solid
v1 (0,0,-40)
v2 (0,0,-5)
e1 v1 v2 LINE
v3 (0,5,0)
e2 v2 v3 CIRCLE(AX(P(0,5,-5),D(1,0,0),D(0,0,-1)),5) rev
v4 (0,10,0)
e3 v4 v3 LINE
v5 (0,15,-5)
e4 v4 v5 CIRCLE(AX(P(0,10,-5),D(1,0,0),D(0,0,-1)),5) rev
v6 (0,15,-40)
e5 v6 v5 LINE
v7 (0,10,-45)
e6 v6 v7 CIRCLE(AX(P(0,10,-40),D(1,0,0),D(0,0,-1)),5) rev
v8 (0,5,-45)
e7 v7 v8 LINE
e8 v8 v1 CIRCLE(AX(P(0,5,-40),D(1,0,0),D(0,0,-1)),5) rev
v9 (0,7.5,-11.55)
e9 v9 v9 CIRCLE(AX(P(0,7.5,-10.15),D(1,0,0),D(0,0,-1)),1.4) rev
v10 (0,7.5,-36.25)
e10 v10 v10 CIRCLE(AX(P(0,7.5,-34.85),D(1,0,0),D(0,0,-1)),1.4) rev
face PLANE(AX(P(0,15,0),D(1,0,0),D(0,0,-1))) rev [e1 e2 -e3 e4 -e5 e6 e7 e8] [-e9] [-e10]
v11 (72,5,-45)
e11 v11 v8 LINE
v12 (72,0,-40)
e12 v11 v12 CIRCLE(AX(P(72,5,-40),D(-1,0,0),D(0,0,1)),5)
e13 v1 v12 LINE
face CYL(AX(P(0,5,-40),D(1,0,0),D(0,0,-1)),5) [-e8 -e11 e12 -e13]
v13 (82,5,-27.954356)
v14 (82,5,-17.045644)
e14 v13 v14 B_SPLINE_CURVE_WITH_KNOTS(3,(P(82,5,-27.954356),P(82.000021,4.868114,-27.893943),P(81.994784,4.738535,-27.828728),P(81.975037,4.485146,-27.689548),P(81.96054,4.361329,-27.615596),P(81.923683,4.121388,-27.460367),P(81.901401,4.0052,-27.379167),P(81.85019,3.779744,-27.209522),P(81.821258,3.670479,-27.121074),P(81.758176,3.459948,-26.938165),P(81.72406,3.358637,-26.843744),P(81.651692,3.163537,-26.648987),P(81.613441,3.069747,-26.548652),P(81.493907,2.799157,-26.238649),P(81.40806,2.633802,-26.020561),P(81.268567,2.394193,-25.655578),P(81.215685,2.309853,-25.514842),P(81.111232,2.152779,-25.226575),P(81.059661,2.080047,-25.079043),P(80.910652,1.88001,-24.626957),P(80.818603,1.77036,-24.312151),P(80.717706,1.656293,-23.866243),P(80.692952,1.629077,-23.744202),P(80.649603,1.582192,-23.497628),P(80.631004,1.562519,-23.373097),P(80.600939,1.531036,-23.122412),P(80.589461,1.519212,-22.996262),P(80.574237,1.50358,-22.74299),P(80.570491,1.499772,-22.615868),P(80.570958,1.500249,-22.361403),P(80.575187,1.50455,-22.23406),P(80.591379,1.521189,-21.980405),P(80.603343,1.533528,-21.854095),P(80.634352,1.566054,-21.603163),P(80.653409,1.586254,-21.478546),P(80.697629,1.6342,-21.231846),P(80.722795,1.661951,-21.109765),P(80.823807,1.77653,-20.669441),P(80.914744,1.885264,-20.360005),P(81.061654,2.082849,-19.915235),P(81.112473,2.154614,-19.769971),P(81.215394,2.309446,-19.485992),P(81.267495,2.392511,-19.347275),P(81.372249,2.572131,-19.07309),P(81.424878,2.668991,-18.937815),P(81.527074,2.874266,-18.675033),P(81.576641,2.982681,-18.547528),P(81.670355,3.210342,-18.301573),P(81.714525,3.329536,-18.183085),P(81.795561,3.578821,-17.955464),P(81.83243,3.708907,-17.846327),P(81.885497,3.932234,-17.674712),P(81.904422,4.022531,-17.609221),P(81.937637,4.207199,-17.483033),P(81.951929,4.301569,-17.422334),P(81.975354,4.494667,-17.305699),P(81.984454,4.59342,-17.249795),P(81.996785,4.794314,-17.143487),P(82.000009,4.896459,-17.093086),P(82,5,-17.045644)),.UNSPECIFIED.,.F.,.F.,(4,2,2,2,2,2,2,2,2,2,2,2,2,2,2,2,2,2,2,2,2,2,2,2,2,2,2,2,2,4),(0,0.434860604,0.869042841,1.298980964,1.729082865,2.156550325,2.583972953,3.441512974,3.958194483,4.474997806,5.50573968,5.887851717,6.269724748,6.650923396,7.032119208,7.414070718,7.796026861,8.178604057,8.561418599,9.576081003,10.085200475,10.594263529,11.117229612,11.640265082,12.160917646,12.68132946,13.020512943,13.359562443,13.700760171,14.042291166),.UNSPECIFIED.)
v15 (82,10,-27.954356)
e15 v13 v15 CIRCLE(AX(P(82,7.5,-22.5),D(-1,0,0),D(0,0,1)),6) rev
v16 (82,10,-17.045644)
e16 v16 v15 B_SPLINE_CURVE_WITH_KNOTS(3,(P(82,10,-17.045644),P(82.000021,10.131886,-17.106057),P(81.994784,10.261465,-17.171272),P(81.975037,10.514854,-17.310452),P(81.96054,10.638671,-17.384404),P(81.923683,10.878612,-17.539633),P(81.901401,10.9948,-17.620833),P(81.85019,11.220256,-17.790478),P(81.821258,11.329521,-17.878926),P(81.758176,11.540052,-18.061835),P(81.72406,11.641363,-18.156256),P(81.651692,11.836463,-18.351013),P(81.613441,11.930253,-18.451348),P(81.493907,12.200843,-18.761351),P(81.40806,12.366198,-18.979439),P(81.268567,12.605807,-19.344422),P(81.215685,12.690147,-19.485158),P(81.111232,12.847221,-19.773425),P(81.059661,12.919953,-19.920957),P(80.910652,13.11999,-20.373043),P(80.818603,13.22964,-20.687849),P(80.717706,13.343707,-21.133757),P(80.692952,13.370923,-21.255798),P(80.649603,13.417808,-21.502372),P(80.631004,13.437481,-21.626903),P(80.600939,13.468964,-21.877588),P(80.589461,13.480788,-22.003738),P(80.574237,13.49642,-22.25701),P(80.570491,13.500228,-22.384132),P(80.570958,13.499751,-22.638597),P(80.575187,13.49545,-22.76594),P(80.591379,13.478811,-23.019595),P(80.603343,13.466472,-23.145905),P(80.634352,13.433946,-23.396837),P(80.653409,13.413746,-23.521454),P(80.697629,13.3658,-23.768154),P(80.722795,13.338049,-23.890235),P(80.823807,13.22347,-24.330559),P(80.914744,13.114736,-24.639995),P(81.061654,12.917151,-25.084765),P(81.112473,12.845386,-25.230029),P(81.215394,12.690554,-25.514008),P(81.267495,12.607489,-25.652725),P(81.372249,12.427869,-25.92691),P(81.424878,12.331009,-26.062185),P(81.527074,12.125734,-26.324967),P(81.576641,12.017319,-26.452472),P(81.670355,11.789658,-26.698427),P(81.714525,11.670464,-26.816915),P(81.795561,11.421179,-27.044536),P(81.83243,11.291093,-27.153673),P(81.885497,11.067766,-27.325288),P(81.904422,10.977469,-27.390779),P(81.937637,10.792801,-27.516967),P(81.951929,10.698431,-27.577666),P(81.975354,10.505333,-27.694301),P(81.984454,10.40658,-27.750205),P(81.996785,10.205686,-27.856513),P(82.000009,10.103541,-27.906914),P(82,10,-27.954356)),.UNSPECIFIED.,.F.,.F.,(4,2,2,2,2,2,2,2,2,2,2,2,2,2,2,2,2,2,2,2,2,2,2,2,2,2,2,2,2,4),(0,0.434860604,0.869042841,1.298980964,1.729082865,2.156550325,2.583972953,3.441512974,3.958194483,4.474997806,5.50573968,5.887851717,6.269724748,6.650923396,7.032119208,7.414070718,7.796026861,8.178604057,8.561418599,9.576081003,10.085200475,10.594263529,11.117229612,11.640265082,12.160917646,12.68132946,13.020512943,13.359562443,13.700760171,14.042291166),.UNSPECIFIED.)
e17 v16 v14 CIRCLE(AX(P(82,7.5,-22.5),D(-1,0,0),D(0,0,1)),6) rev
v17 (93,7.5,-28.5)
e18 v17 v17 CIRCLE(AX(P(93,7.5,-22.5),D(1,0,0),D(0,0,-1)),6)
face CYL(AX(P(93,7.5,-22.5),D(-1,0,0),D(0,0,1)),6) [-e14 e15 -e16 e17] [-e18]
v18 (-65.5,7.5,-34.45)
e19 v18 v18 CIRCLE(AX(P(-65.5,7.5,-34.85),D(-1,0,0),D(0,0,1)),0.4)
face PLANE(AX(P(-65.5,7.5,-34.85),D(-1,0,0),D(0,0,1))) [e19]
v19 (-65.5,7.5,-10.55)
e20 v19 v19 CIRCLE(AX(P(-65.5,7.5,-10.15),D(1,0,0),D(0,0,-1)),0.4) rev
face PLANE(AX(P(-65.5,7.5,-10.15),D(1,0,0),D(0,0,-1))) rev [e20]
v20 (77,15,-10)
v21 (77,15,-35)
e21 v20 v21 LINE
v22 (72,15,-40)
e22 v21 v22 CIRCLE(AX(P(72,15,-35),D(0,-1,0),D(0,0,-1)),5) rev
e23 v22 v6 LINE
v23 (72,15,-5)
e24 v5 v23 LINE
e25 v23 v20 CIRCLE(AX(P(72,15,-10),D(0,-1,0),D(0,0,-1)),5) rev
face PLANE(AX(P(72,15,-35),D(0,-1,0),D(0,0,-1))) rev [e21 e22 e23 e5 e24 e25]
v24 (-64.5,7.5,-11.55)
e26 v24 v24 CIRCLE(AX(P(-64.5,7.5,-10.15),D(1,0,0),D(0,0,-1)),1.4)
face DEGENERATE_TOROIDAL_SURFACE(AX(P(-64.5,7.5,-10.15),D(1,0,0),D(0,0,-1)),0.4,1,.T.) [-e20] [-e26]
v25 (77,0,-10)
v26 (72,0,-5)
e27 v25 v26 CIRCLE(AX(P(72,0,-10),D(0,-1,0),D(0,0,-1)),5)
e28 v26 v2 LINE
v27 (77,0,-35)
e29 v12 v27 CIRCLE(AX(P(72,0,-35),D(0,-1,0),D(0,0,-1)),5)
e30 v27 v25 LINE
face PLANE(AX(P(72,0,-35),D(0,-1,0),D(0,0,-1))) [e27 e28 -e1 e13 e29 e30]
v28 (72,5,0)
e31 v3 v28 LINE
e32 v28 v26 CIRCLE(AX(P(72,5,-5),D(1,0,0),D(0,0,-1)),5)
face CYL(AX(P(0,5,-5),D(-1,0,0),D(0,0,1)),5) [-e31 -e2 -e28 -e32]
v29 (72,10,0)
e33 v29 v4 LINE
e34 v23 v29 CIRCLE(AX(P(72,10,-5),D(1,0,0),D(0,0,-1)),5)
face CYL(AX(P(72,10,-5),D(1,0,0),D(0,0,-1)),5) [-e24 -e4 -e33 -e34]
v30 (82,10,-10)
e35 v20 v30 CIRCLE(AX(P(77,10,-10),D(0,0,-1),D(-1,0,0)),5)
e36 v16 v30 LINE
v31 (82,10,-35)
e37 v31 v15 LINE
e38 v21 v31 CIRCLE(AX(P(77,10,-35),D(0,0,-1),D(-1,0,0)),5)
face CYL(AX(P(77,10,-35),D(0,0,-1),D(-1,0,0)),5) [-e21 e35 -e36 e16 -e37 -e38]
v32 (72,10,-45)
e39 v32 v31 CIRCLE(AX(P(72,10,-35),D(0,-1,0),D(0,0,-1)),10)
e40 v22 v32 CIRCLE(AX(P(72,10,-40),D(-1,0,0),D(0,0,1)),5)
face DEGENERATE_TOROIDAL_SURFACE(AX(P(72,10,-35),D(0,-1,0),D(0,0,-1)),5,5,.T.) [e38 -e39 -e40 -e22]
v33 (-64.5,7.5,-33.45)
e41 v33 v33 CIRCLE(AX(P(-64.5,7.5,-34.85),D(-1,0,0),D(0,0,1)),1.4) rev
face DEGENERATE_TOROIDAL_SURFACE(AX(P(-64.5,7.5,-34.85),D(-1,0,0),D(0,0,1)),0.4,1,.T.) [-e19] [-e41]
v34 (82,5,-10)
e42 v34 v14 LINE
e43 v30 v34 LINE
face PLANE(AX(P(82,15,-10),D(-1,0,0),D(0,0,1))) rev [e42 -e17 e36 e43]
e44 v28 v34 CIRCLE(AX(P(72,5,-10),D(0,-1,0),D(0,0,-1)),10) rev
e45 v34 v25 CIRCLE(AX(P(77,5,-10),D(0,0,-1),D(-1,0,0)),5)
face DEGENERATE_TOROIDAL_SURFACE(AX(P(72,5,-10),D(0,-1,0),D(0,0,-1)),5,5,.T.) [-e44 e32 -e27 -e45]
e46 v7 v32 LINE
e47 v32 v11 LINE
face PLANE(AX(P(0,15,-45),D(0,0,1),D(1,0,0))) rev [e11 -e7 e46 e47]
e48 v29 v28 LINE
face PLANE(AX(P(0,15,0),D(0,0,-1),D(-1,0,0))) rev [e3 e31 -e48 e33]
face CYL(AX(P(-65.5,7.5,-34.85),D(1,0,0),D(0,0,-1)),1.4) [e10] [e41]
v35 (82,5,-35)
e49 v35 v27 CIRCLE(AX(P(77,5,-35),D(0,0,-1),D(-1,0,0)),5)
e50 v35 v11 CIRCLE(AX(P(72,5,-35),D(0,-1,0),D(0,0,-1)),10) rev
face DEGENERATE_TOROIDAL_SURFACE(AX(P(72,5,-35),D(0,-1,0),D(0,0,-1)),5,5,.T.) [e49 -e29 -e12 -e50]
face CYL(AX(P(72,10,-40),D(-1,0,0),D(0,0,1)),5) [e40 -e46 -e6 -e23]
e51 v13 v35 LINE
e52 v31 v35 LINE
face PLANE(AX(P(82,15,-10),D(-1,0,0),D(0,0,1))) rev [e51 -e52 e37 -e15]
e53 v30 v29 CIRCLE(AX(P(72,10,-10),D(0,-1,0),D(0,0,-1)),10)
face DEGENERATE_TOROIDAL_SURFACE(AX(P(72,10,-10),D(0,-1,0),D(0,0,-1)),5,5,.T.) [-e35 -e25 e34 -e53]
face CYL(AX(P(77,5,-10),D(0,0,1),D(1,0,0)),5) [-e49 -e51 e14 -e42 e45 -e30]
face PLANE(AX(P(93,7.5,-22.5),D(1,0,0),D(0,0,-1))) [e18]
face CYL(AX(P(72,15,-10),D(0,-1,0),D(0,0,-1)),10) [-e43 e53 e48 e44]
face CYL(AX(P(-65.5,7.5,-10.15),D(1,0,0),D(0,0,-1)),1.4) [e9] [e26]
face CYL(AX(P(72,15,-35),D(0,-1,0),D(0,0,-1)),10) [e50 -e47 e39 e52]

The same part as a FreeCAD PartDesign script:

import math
import FreeCAD as App
import Part
import Sketcher
Q = App.Units.Quantity


def edges_at(feature, points):
    """Names of the edges that pass closest to the given points."""
    edges = feature.Shape.Edges
    near = lambda p: min(range(len(edges)), key=lambda i: edges[i].distToShape(Part.Vertex(*p))[0])
    return sorted({f"Edge{near(p) + 1}" for p in points})

doc = App.newDocument("Part")
params = doc.addObject("Spreadsheet::Sheet", "Params")
for row, (alias, value) in enumerate([
    ("sketch1_radius", "10 mm"),
    ("sketch1_width", "72 mm"),
    ("sketch1_height", "25 mm"),
    ("pad1_length", "15 mm"),
    ("fillet_radius", "5 mm"),
    ("sketch2_diameter", "12 mm"),
    ("pad2_length", "22 mm"),
    ("sketch3_diameter", "2.8 mm"),
    ("pad3_length", "65.5 mm"),
    ("fillet2_radius", "1 mm"),
], start=1):
    params.set(f"A{row}", alias)
    params.set(f"B{row}", "=" + value)
    params.setAlias(f"B{row}", alias)

body = doc.addObject("PartDesign::Body", "Body")

sketch1 = body.newObject("Sketcher::SketchObject", "Sketch")
sketch1.AttachmentSupport = (doc.getObject("XZ_Plane"), [""])
sketch1.MapMode = "FlatFace"
sketch1.addGeometry(Part.LineSegment(App.Vector(0, 0, 0), App.Vector(72, 0, 0)), False)
sketch1.addGeometry(Part.ArcOfCircle(Part.Circle(App.Vector(72, -10, 0), App.Vector(0, 0, 1), 10), math.radians(0), math.radians(90)), False)
sketch1.addGeometry(Part.LineSegment(App.Vector(82, -10, 0), App.Vector(82, -35, 0)), False)
sketch1.addGeometry(Part.ArcOfCircle(Part.Circle(App.Vector(72, -35, 0), App.Vector(0, 0, 1), 10), math.radians(-90), math.radians(0)), False)
sketch1.addGeometry(Part.LineSegment(App.Vector(72, -45, 0), App.Vector(0, -45, 0)), False)
sketch1.addGeometry(Part.LineSegment(App.Vector(0, -45, 0), App.Vector(0, 0, 0)), False)
sketch1.addConstraint(Sketcher.Constraint("Tangent", 0, 2, 1, 2))
sketch1.addConstraint(Sketcher.Constraint("Tangent", 1, 1, 2, 1))
sketch1.addConstraint(Sketcher.Constraint("Tangent", 2, 2, 3, 2))
sketch1.addConstraint(Sketcher.Constraint("Tangent", 3, 1, 4, 1))
sketch1.addConstraint(Sketcher.Constraint("Coincident", 4, 2, 5, 1))
sketch1.addConstraint(Sketcher.Constraint("Coincident", 5, 2, 0, 1))
sketch1.addConstraint(Sketcher.Constraint("Horizontal", 0))
sketch1.addConstraint(Sketcher.Constraint("Vertical", 2))
sketch1.addConstraint(Sketcher.Constraint("Horizontal", 4))
sketch1.addConstraint(Sketcher.Constraint("Vertical", 5))
sketch1.addConstraint(Sketcher.Constraint("Coincident", 5, 2, -1, 1))
sketch1.addConstraint(Sketcher.Constraint("Equal", 1, 3))
sketch1.addConstraint(Sketcher.Constraint("Radius", 1, Q("10 mm")))
sketch1.addConstraint(Sketcher.Constraint("DistanceX", 0, 1, 0, 2, Q("72 mm")))
sketch1.addConstraint(Sketcher.Constraint("DistanceY", 2, 2, 2, 1, Q("25 mm")))
sketch1.setExpression("Constraints[12]", "Params.sketch1_radius")
sketch1.setExpression("Constraints[13]", "Params.sketch1_width")
sketch1.setExpression("Constraints[14]", "Params.sketch1_height")
pad1 = body.newObject("PartDesign::Pad", "Pad")
pad1.Profile = sketch1
pad1.setExpression("Length", "Params.pad1_length")
pad1.Reversed = True
doc.recompute()

fillet = body.newObject("PartDesign::Fillet", "Fillet")
fillet.Base = (pad1, edges_at(pad1, [
    (79.071, 15, -2.929),
    (82, 15, -22.5),
    (79.071, 15, -42.071),
    (36, 15, -45),
    (36, 0, -45),
    (79.071, 0, -42.071),
    (82, 0, -22.5),
    (79.071, 0, -2.929),
    (36, 0, 0),
    (36, 15, 0),
]))
fillet.setExpression("Radius", "Params.fillet_radius")

sketch2 = body.newObject("Sketcher::SketchObject", "Sketch001")
sketch2.AttachmentSupport = (doc.getObject("YZ_Plane"), [""])
sketch2.MapMode = "FlatFace"
sketch2.AttachmentOffset = App.Placement(App.Vector(0, 0, 82), App.Rotation())
sketch2.addGeometry(Part.Circle(App.Vector(8, -22, 0), App.Vector(0, 0, 1), 6), False)
sketch2.addConstraint(Sketcher.Constraint("Diameter", 0, Q("12 mm")))
sketch2.addConstraint(Sketcher.Constraint("DistanceX", -1, 1, 0, 3, Q("7.5 mm")))
sketch2.addConstraint(Sketcher.Constraint("DistanceY", 0, 3, -1, 1, Q("22.5 mm")))
sketch2.setExpression("Constraints[0]", "Params.sketch2_diameter")
pad2 = body.newObject("PartDesign::Pad", "Pad001")
pad2.Profile = sketch2
pad2.setExpression("Length", "Params.pad2_length")
pad2.Midplane = True

sketch3 = body.newObject("Sketcher::SketchObject", "Sketch002")
sketch3.AttachmentSupport = (doc.getObject("YZ_Plane"), [""])
sketch3.MapMode = "FlatFace"
sketch3.addGeometry(Part.Circle(App.Vector(7.5, -34.9, 0), App.Vector(0, 0, 1), 1.4), False)
sketch3.addGeometry(Part.Circle(App.Vector(7.5, -10.2, 0), App.Vector(0, 0, 1), 1.4), False)
sketch3.addConstraint(Sketcher.Constraint("Equal", 0, 1))
sketch3.addConstraint(Sketcher.Constraint("Vertical", 0, 3, 1, 3))
sketch3.addConstraint(Sketcher.Constraint("Diameter", 0, Q("2.8 mm")))
sketch3.addConstraint(Sketcher.Constraint("DistanceX", -1, 1, 0, 3, Q("7.5 mm")))
sketch3.addConstraint(Sketcher.Constraint("DistanceY", 0, 3, 1, 3, Q("24.7 mm")))
sketch3.addConstraint(Sketcher.Constraint("DistanceY", 0, 3, -1, 1, Q("34.85 mm")))
sketch3.setExpression("Constraints[2]", "Params.sketch3_diameter")
pad3 = body.newObject("PartDesign::Pad", "Pad002")
pad3.Profile = sketch3
pad3.setExpression("Length", "Params.pad3_length")
pad3.Reversed = True
doc.recompute()

fillet2 = body.newObject("PartDesign::Fillet", "Fillet001")
fillet2.Base = (pad3, edges_at(pad3, [(-65.5, 7.5, -33.45), (-65.5, 7.5, -8.75)]))
fillet2.setExpression("Radius", "Params.fillet2_radius")

doc.recompute()
